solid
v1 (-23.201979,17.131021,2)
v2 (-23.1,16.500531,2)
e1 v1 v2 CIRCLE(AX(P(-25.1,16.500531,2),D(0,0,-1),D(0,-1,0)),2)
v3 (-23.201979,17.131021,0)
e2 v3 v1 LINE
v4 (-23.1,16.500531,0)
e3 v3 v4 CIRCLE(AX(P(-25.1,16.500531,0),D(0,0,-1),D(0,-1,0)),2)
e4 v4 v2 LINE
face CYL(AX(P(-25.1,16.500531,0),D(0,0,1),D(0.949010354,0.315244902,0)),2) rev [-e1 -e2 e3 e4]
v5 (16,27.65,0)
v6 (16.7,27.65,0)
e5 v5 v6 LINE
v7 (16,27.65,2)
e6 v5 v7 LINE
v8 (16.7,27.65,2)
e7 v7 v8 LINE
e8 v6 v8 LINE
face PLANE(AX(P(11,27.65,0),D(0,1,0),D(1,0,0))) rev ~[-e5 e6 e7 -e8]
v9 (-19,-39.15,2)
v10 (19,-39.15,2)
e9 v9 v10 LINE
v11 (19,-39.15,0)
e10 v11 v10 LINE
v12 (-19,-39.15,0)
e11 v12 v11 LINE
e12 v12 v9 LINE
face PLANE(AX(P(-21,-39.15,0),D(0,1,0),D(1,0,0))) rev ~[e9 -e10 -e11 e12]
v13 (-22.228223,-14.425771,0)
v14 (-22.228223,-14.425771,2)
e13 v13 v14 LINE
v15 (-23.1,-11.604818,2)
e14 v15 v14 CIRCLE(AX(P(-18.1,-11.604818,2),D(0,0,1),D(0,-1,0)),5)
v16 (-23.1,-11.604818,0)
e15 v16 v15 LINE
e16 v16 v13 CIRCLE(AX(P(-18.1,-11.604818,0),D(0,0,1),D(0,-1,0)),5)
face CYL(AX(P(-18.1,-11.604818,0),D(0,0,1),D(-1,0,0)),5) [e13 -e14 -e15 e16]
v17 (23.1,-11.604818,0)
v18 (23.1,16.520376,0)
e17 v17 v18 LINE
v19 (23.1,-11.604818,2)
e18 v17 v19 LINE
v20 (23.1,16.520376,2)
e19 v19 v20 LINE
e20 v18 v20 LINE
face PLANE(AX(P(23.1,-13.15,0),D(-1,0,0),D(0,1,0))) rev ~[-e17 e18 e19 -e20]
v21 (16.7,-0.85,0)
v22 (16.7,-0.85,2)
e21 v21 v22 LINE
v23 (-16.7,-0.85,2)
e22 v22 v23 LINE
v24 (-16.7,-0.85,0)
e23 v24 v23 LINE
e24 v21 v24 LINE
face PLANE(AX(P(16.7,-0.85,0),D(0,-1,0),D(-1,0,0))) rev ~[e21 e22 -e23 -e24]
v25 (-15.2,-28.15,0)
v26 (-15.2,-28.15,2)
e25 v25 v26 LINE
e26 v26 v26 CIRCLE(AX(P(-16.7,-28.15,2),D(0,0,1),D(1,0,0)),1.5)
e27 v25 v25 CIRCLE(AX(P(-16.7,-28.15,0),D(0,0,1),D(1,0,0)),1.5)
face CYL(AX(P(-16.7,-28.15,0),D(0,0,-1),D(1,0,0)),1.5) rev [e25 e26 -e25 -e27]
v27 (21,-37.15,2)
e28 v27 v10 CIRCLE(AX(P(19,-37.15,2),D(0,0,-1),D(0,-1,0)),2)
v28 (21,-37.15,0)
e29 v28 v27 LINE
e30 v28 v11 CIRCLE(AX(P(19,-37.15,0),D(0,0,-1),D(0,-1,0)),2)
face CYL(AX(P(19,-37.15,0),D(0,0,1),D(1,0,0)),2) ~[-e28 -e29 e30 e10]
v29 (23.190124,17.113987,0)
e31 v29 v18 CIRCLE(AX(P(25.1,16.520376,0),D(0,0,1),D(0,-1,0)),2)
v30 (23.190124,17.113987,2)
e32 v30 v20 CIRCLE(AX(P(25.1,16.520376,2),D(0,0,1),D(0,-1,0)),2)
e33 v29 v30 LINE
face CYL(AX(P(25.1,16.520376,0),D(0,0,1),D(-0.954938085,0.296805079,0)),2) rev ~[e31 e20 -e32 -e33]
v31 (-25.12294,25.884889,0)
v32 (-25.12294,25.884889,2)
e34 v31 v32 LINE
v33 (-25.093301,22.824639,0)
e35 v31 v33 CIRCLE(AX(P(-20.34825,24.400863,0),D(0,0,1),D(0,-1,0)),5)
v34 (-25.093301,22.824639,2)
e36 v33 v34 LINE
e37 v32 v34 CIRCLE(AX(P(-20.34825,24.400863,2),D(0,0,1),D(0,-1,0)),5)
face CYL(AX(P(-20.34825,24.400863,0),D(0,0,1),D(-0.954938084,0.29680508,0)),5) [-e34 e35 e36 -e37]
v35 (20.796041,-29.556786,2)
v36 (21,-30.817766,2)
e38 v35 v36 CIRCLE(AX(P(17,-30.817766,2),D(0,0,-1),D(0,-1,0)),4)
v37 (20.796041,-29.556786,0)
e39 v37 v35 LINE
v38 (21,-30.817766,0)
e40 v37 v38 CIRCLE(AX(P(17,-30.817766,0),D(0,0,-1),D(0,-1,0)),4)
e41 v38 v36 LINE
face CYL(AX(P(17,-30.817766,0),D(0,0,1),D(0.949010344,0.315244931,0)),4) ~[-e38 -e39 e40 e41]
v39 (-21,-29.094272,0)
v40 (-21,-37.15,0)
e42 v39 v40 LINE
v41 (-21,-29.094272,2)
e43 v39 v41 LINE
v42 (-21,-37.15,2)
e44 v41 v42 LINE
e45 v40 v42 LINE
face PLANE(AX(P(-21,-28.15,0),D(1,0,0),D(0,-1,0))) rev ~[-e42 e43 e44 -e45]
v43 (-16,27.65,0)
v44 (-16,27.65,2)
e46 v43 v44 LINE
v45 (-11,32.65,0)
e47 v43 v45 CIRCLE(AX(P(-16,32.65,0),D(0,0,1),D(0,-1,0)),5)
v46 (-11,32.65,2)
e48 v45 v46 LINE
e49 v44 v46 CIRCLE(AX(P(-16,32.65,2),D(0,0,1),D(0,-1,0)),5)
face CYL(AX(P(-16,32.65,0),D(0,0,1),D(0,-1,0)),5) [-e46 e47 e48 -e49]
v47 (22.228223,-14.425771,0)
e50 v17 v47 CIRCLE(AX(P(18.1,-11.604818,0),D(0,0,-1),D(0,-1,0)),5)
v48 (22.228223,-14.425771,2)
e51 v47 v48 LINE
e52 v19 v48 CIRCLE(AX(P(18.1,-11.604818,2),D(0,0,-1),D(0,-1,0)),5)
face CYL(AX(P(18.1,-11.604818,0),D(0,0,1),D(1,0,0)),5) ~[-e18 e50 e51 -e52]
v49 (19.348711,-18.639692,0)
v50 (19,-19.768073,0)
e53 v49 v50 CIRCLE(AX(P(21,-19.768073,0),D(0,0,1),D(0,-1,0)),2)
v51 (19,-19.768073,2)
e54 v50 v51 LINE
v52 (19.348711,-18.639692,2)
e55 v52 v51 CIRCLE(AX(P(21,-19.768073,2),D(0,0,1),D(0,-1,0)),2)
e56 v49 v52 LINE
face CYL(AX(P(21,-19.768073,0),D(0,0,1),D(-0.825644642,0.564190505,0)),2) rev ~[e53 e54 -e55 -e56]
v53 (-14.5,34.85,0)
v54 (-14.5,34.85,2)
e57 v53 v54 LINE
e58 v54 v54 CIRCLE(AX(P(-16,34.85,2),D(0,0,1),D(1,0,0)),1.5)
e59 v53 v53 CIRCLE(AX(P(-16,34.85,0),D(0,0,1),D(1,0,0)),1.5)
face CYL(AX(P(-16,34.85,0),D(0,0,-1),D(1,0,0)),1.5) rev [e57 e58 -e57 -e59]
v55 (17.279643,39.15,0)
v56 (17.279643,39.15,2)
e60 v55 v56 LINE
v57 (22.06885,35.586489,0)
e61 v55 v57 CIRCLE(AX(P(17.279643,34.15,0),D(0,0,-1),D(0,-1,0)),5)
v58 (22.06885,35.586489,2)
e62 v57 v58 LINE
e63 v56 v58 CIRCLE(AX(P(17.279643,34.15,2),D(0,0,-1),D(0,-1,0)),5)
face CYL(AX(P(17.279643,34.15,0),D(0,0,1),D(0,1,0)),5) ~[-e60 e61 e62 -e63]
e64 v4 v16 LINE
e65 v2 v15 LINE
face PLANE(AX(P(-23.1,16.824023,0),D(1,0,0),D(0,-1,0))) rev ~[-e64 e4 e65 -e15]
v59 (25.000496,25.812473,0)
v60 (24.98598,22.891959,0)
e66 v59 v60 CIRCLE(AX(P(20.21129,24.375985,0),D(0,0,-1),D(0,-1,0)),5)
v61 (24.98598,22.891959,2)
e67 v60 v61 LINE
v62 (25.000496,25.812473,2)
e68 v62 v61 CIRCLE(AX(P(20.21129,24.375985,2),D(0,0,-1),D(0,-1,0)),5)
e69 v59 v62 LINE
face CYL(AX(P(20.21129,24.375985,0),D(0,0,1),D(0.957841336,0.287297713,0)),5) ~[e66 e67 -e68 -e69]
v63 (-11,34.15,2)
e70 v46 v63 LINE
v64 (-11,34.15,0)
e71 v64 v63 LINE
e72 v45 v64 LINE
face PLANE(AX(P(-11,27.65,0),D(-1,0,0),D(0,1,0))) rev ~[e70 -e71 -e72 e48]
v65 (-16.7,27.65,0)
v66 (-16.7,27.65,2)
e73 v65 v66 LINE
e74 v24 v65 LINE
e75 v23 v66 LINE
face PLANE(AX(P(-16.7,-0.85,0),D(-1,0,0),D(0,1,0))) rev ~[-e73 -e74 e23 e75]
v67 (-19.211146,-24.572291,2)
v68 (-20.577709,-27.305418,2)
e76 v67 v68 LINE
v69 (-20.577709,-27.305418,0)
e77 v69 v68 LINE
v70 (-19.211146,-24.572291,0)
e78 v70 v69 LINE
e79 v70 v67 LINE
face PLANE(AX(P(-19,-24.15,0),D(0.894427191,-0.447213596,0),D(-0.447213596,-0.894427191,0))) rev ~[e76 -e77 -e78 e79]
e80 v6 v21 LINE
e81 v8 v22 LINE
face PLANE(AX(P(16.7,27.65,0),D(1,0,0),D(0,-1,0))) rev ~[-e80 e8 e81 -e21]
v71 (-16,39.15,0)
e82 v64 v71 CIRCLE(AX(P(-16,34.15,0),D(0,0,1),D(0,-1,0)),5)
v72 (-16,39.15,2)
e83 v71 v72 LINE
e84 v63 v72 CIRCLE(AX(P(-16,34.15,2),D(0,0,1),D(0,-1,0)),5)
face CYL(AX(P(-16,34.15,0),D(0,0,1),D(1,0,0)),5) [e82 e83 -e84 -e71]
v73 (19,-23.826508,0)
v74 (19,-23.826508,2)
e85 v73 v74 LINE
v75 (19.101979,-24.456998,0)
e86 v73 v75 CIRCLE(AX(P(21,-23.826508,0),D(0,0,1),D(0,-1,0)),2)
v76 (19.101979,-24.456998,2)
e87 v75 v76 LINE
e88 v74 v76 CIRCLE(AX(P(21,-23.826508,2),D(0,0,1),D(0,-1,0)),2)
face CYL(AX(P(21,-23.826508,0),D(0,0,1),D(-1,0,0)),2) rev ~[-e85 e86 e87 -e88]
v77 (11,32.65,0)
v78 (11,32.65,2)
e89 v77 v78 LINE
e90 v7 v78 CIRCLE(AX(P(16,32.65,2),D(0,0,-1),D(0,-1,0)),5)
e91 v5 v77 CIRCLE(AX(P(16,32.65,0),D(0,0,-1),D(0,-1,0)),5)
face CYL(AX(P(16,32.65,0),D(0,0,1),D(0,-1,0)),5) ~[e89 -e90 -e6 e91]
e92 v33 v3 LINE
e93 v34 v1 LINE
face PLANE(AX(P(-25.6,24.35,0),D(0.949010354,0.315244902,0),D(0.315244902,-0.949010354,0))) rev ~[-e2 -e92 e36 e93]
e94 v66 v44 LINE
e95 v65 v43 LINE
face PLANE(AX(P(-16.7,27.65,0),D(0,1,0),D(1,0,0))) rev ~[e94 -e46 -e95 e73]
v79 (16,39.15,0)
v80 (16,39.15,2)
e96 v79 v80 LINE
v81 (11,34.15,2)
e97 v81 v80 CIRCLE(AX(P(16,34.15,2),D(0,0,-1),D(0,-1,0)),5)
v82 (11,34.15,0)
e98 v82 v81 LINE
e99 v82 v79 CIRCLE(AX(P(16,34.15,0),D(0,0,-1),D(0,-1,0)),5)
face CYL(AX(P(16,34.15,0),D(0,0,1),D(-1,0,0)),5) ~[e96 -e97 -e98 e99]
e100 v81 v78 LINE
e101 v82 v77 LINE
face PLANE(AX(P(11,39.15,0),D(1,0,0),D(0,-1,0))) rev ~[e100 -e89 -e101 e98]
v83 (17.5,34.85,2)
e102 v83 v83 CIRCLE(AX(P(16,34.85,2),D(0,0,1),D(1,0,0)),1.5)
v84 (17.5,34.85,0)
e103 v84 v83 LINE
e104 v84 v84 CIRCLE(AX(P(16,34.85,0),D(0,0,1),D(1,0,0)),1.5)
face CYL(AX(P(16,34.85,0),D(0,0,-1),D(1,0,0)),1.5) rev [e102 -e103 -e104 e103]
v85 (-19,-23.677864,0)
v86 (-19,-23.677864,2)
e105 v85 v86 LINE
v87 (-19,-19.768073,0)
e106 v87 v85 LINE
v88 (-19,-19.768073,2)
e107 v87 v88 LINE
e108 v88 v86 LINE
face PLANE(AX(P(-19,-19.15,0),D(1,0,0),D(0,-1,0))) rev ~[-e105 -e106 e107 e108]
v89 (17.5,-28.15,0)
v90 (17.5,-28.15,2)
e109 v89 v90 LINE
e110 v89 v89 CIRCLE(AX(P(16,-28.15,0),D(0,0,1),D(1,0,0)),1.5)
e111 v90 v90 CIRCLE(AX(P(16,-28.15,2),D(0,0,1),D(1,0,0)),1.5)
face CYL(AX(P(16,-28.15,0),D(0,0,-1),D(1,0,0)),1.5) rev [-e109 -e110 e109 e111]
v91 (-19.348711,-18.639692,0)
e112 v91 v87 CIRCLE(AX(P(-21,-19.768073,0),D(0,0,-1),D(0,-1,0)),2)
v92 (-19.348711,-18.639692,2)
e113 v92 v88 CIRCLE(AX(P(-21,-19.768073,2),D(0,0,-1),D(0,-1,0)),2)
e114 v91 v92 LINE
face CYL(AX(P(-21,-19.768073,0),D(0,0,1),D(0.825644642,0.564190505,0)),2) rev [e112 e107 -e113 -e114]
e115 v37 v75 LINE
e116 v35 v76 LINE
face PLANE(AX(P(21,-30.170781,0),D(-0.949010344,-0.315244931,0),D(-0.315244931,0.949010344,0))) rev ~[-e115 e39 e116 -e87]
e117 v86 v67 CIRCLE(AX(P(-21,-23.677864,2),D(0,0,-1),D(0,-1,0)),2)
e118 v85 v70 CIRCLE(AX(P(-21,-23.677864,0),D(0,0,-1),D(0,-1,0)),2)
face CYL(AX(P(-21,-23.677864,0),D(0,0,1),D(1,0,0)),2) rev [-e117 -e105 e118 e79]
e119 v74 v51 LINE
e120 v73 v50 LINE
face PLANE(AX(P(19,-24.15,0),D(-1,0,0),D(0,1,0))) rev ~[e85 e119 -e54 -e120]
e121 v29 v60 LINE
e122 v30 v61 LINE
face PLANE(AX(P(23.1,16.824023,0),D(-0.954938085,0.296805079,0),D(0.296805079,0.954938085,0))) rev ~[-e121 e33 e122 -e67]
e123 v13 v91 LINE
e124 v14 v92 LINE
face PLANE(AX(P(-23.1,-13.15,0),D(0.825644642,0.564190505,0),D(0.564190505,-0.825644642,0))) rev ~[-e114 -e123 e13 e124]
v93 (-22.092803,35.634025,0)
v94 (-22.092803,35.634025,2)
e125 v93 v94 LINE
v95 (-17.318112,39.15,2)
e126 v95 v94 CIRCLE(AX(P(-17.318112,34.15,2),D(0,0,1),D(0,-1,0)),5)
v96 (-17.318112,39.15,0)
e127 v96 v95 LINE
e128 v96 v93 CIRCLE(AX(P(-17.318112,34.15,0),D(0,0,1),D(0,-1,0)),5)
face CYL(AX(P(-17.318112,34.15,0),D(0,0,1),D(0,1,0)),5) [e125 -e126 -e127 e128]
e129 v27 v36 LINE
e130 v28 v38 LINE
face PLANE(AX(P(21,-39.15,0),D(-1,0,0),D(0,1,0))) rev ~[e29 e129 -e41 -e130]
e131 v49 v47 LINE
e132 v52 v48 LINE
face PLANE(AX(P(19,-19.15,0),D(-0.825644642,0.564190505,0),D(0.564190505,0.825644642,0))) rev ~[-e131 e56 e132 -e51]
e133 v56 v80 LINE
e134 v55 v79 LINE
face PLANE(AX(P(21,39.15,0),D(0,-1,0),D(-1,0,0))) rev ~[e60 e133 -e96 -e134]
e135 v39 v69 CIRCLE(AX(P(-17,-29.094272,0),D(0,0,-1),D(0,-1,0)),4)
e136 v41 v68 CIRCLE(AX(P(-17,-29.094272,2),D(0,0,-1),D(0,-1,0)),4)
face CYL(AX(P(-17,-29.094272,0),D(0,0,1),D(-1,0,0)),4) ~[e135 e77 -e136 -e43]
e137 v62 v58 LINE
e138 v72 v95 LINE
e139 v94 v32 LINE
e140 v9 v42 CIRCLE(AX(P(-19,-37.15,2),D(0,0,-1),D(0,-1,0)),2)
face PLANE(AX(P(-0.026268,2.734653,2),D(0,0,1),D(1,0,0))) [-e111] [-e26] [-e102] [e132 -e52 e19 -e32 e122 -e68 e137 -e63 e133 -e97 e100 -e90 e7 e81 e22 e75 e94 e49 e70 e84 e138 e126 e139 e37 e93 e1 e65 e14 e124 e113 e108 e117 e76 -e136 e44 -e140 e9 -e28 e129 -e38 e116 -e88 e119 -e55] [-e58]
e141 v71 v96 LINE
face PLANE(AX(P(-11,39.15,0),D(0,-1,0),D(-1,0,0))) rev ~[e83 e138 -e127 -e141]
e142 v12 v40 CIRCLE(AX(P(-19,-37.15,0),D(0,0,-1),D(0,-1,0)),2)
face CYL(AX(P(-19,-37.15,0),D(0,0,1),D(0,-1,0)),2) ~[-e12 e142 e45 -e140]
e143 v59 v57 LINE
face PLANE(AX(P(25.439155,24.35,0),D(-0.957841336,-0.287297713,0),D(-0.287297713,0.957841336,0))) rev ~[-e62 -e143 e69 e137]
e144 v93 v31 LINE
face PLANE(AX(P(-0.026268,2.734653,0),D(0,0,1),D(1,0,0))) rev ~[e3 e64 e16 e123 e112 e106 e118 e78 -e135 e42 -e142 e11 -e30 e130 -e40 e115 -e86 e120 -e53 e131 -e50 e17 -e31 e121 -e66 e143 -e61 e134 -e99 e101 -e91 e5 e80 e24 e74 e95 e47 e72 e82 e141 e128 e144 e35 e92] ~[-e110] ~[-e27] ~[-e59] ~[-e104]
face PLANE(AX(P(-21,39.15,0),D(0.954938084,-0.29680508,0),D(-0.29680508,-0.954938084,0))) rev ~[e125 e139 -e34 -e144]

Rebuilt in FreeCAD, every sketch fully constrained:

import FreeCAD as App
import Part
import Sketcher
Q = App.Units.Quantity


def edges_at(feature, points):
    """Names of the edges that pass closest to the given points."""
    edges = feature.Shape.Edges
    near = lambda p: min(range(len(edges)), key=lambda i: edges[i].distToShape(Part.Vertex(*p))[0])
    return sorted({f"Edge{near(p) + 1}" for p in points})

doc = App.newDocument("Part")
params = doc.addObject("Spreadsheet::Sheet", "Params")
for row, (alias, value) in enumerate([
    ("sketch1_diameter", "3 mm"),
    ("sketch1_width", "10 mm"),
    ("sketch1_width2", "42 mm"),
    ("sketch1_height", "5 mm"),
    ("sketch1_height2", "11 mm"),
    ("pad1_length", "2 mm"),
    ("fillet_radius", "5 mm"),
    ("fillet2_radius", "2 mm"),
    ("fillet3_radius", "4 mm"),
], start=1):
    params.set(f"A{row}", alias)
    params.set(f"B{row}", "=" + value)
    params.setAlias(f"B{row}", alias)

body = doc.addObject("PartDesign::Body", "Body")

# Sketch on XY plane
sketch1 = doc.addObject("Sketcher::SketchObject", "Sketch")
body.addObject(sketch1)
sketch1.AttachmentSupport = (doc.XY_Plane, [""])
sketch1.MapMode = "FlatFace"
sketch1.addGeometry(Part.LineSegment(App.Vector(16.7, -0.85, 0), App.Vector(-16.7, -0.85, 0)), False)
sketch1.addGeometry(Part.LineSegment(App.Vector(-16.7, -0.85, 0), App.Vector(-16.7, 27.65, 0)), False)
sketch1.addGeometry(Part.LineSegment(App.Vector(-16.7, 27.65, 0), App.Vector(-11, 27.65, 0)), False)
sketch1.addGeometry(Part.LineSegment(App.Vector(-11, 27.65, 0), App.Vector(-11, 39.15, 0)), False)
sketch1.addGeometry(Part.LineSegment(App.Vector(-11, 39.15, 0), App.Vector(-21, 39.15, 0)), False)
sketch1.addGeometry(Part.LineSegment(App.Vector(-21, 39.15, 0), App.Vector(-25.6, 24.35, 0)), False)
sketch1.addGeometry(Part.LineSegment(App.Vector(-25.6, 24.35, 0), App.Vector(-23.1, 16.824023, 0)), False)
sketch1.addGeometry(Part.LineSegment(App.Vector(-23.1, 16.824023, 0), App.Vector(-23.1, -13.15, 0)), False)
sketch1.addGeometry(Part.LineSegment(App.Vector(-23.1, -13.15, 0), App.Vector(-19, -19.15, 0)), False)
sketch1.addGeometry(Part.LineSegment(App.Vector(-19, -19.15, 0), App.Vector(-19, -24.15, 0)), False)
sketch1.addGeometry(Part.LineSegment(App.Vector(-19, -24.15, 0), App.Vector(-21, -28.15, 0)), False)
sketch1.addGeometry(Part.LineSegment(App.Vector(-21, -28.15, 0), App.Vector(-21, -39.15, 0)), False)
sketch1.addGeometry(Part.LineSegment(App.Vector(-21, -39.15, 0), App.Vector(21, -39.15, 0)), False)
sketch1.addGeometry(Part.LineSegment(App.Vector(21, -39.15, 0), App.Vector(21, -30.170781, 0)), False)
sketch1.addGeometry(Part.LineSegment(App.Vector(21, -30.170781, 0), App.Vector(19, -24.15, 0)), False)
sketch1.addGeometry(Part.LineSegment(App.Vector(19, -24.15, 0), App.Vector(19, -19.15, 0)), False)
sketch1.addGeometry(Part.LineSegment(App.Vector(19, -19.15, 0), App.Vector(23.1, -13.15, 0)), False)
sketch1.addGeometry(Part.LineSegment(App.Vector(23.1, -13.15, 0), App.Vector(23.1, 16.824023, 0)), False)
sketch1.addGeometry(Part.LineSegment(App.Vector(23.1, 16.824023, 0), App.Vector(25.439155, 24.35, 0)), False)
sketch1.addGeometry(Part.LineSegment(App.Vector(25.439155, 24.35, 0), App.Vector(21, 39.15, 0)), False)
sketch1.addGeometry(Part.LineSegment(App.Vector(21, 39.15, 0), App.Vector(11, 39.15, 0)), False)
sketch1.addGeometry(Part.LineSegment(App.Vector(11, 39.15, 0), App.Vector(11, 27.65, 0)), False)
sketch1.addGeometry(Part.LineSegment(App.Vector(11, 27.65, 0), App.Vector(16.7, 27.65, 0)), False)
sketch1.addGeometry(Part.LineSegment(App.Vector(16.7, 27.65, 0), App.Vector(16.7, -0.85, 0)), False)
sketch1.addGeometry(Part.Circle(App.Vector(-16.7, -28.15, 0), App.Vector(0, 0, 1), 1.5), False)
sketch1.addGeometry(Part.Circle(App.Vector(16, -28.15, 0), App.Vector(0, 0, 1), 1.5), False)
sketch1.addGeometry(Part.Circle(App.Vector(-16, 34.85, 0), App.Vector(0, 0, 1), 1.5), False)
sketch1.addGeometry(Part.Circle(App.Vector(16, 34.85, 0), App.Vector(0, 0, 1), 1.5), False)
sketch1.addConstraint(Sketcher.Constraint("Coincident", 0, 2, 1, 1))
sketch1.addConstraint(Sketcher.Constraint("Coincident", 1, 2, 2, 1))
sketch1.addConstraint(Sketcher.Constraint("Coincident", 2, 2, 3, 1))
sketch1.addConstraint(Sketcher.Constraint("Coincident", 3, 2, 4, 1))
sketch1.addConstraint(Sketcher.Constraint("Coincident", 4, 2, 5, 1))
sketch1.addConstraint(Sketcher.Constraint("Coincident", 5, 2, 6, 1))
sketch1.addConstraint(Sketcher.Constraint("Coincident", 6, 2, 7, 1))
sketch1.addConstraint(Sketcher.Constraint("Coincident", 7, 2, 8, 1))
sketch1.addConstraint(Sketcher.Constraint("Coincident", 8, 2, 9, 1))
sketch1.addConstraint(Sketcher.Constraint("Coincident", 9, 2, 10, 1))
sketch1.addConstraint(Sketcher.Constraint("Coincident", 10, 2, 11, 1))
sketch1.addConstraint(Sketcher.Constraint("Coincident", 11, 2, 12, 1))
sketch1.addConstraint(Sketcher.Constraint("Coincident", 12, 2, 13, 1))
sketch1.addConstraint(Sketcher.Constraint("Coincident", 13, 2, 14, 1))
sketch1.addConstraint(Sketcher.Constraint("Coincident", 14, 2, 15, 1))
sketch1.addConstraint(Sketcher.Constraint("Coincident", 15, 2, 16, 1))
sketch1.addConstraint(Sketcher.Constraint("Coincident", 16, 2, 17, 1))
sketch1.addConstraint(Sketcher.Constraint("Coincident", 17, 2, 18, 1))
sketch1.addConstraint(Sketcher.Constraint("Coincident", 18, 2, 19, 1))
sketch1.addConstraint(Sketcher.Constraint("Coincident", 19, 2, 20, 1))
sketch1.addConstraint(Sketcher.Constraint("Coincident", 20, 2, 21, 1))
sketch1.addConstraint(Sketcher.Constraint("Coincident", 21, 2, 22, 1))
sketch1.addConstraint(Sketcher.Constraint("Coincident", 22, 2, 23, 1))
sketch1.addConstraint(Sketcher.Constraint("Coincident", 23, 2, 0, 1))
sketch1.addConstraint(Sketcher.Constraint("Horizontal", 0))
sketch1.addConstraint(Sketcher.Constraint("Vertical", 1))
sketch1.addConstraint(Sketcher.Constraint("Horizontal", 2))
sketch1.addConstraint(Sketcher.Constraint("Vertical", 3))
sketch1.addConstraint(Sketcher.Constraint("Horizontal", 4))
sketch1.addConstraint(Sketcher.Constraint("Vertical", 7))
sketch1.addConstraint(Sketcher.Constraint("Vertical", 9))
sketch1.addConstraint(Sketcher.Constraint("Vertical", 11))
sketch1.addConstraint(Sketcher.Constraint("Horizontal", 12))
sketch1.addConstraint(Sketcher.Constraint("Vertical", 13))
sketch1.addConstraint(Sketcher.Constraint("Vertical", 15))
sketch1.addConstraint(Sketcher.Constraint("Vertical", 17))
sketch1.addConstraint(Sketcher.Constraint("Horizontal", 20))
sketch1.addConstraint(Sketcher.Constraint("Vertical", 21))
sketch1.addConstraint(Sketcher.Constraint("Horizontal", 22))
sketch1.addConstraint(Sketcher.Constraint("Vertical", 23))
sketch1.addConstraint(Sketcher.Constraint("Equal", 24, 25))
sketch1.addConstraint(Sketcher.Constraint("Equal", 25, 26))
sketch1.addConstraint(Sketcher.Constraint("Equal", 26, 27))
sketch1.addConstraint(Sketcher.Constraint("Symmetric", 4, 2, 12, 2, -1, 1))
sketch1.addConstraint(Sketcher.Constraint("Symmetric", 11, 2, 19, 2, -1, 1))
sketch1.addConstraint(Sketcher.Constraint("Symmetric", 26, 3, 27, 3, -2))
sketch1.addConstraint(Sketcher.Constraint("Symmetric", 9, 2, 14, 2, -2))
sketch1.addConstraint(Sketcher.Constraint("Symmetric", 7, 2, 16, 2, -2))
sketch1.addConstraint(Sketcher.Constraint("Symmetric", 2, 2, 21, 2, -2))
sketch1.addConstraint(Sketcher.Constraint("Parallel", 6, 14))
sketch1.addConstraint(Sketcher.Constraint("Parallel", 5, 18))
sketch1.addConstraint(Sketcher.Constraint("Horizontal", 24, 3, 25, 3))
sketch1.addConstraint(Sketcher.Constraint("Horizontal", 25, 3, 10, 2))
sketch1.addConstraint(Sketcher.Constraint("Horizontal", 8, 2, 15, 2))
sketch1.addConstraint(Sketcher.Constraint("Horizontal", 6, 2, 17, 2))
sketch1.addConstraint(Sketcher.Constraint("Horizontal", 5, 2, 18, 2))
sketch1.addConstraint(Sketcher.Constraint("Vertical", 25, 3, 27, 3))
sketch1.addConstraint(Sketcher.Constraint("Vertical", 24, 3, 0, 2))
sketch1.addConstraint(Sketcher.Constraint("Vertical", 4, 2, 10, 2))
sketch1.addConstraint(Sketcher.Constraint("Equal", 2, 22))
sketch1.addConstraint(Sketcher.Constraint("Diameter", 24, Q("3 mm")))
sketch1.addConstraint(Sketcher.Constraint("DistanceX", 4, 2, 4, 1, Q("10 mm")))
sketch1.addConstraint(Sketcher.Constraint("DistanceX", 12, 1, 12, 2, Q("42 mm")))
sketch1.addConstraint(Sketcher.Constraint("DistanceY", 9, 2, 9, 1, Q("5 mm")))
sketch1.addConstraint(Sketcher.Constraint("DistanceY", 11, 2, 11, 1, Q("11 mm")))
sketch1.addConstraint(Sketcher.Constraint("DistanceX", 0, 2, 0, 1, Q("33.4 mm")))
sketch1.addConstraint(Sketcher.Constraint("DistanceY", 1, 1, 1, 2, Q("28.5 mm")))
sketch1.addConstraint(Sketcher.Constraint("DistanceY", 3, 1, 3, 2, Q("11.5 mm")))
sketch1.addConstraint(Sketcher.Constraint("DistanceX", -1, 1, 25, 3, Q("16 mm")))
sketch1.addConstraint(Sketcher.Constraint("DistanceX", 8, 2, -1, 1, Q("19 mm")))
sketch1.addConstraint(Sketcher.Constraint("DistanceY", 24, 3, 26, 3, Q("63 mm")))
sketch1.addConstraint(Sketcher.Constraint("DistanceY", 24, 3, 7, 2, Q("15 mm")))
sketch1.addConstraint(Sketcher.Constraint("DistanceY", 8, 2, 7, 2, Q("6 mm")))
sketch1.addConstraint(Sketcher.Constraint("DistanceX", 5, 2, -1, 1, Q("25.6 mm")))
sketch1.addConstraint(Sketcher.Constraint("DistanceX", 6, 2, -1, 1, Q("23.1 mm")))
sketch1.addConstraint(Sketcher.Constraint("DistanceY", 24, 3, 0, 2, Q("27.3 mm")))
sketch1.addConstraint(Sketcher.Constraint("DistanceY", 5, 2, 1, 2, Q("3.3 mm")))
sketch1.addConstraint(Sketcher.Constraint("DistanceY", 13, 1, 13, 2, Q("8.979219 mm")))
sketch1.setExpression("Constraints[60]", "Params.sketch1_diameter")
sketch1.setExpression("Constraints[61]", "Params.sketch1_width")
sketch1.setExpression("Constraints[62]", "Params.sketch1_width2")
sketch1.setExpression("Constraints[63]", "Params.sketch1_height")
sketch1.setExpression("Constraints[64]", "Params.sketch1_height2")
pad1 = doc.addObject("PartDesign::Pad", "Pad")
body.addObject(pad1)
pad1.Profile = sketch1
pad1.setExpression("Length", "Params.pad1_length")
doc.recompute()

fillet = doc.addObject("PartDesign::Fillet", "Fillet")
body.addObject(fillet)
fillet.Base = (pad1, edges_at(pad1, [
    (-11, 27.65, 1),
    (11, 27.65, 1),
    (11, 39.15, 1),
    (21, 39.15, 1),
    (-11, 39.15, 1),
    (-21, 39.15, 1),
    (-25.6, 24.35, 1),
    (25.439, 24.35, 1),
    (23.1, -13.15, 1),
    (-23.1, -13.15, 1),
]))
fillet.setExpression("Radius", "Params.fillet_radius")
doc.recompute()

fillet2 = doc.addObject("PartDesign::Fillet", "Fillet001")
body.addObject(fillet2)
fillet2.Base = (fillet, edges_at(fillet, [
    (23.1, 16.824, 1),
    (-23.1, 16.824, 1),
    (-19, -19.15, 1),
    (-19, -24.15, 1),
    (19, -19.15, 1),
    (19, -24.15, 1),
    (21, -39.15, 1),
    (-21, -39.15, 1),
]))
fillet2.setExpression("Radius", "Params.fillet2_radius")
doc.recompute()

fillet3 = doc.addObject("PartDesign::Fillet", "Fillet002")
body.addObject(fillet3)
fillet3.Base = (fillet2, edges_at(fillet2, [(-21, -28.15, 1), (21, -30.171, 1)]))
fillet3.setExpression("Radius", "Params.fillet3_radius")

doc.recompute()
